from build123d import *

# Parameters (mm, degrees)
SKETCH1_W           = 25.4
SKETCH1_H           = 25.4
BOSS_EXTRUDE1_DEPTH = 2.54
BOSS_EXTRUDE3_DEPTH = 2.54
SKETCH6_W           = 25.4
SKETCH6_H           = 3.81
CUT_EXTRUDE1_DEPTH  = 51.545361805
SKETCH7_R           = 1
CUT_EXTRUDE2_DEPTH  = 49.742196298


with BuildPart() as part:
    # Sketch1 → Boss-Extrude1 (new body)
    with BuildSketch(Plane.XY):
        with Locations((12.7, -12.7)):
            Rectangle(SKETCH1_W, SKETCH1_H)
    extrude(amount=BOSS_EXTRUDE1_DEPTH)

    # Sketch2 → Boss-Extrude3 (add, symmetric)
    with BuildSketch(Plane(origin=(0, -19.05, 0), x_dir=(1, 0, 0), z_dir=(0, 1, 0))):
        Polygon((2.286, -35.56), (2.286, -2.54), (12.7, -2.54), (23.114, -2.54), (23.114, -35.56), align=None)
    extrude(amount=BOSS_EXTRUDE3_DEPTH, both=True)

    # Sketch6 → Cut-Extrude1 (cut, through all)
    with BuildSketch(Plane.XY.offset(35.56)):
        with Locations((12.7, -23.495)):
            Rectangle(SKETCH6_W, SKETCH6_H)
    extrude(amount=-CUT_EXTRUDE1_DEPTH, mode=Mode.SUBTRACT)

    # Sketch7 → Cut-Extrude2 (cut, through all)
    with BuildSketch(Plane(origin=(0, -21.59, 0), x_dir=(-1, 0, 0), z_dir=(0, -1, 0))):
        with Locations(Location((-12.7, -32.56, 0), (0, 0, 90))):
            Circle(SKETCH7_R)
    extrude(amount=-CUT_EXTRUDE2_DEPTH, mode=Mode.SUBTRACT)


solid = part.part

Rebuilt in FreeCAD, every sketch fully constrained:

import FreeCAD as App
import Part
import Sketcher

V = App.Vector
Q = App.Units.Quantity

doc = App.newDocument("Part")
body = doc.addObject("PartDesign::Body", "Body")

# Sketch on XY plane
sketch1 = body.newObject("Sketcher::SketchObject", "Sketch")
sketch1.AttachmentSupport = (doc.getObject("XY_Plane"), [""])
sketch1.MapMode = "FlatFace"
sketch1.addGeometry([
    Part.LineSegment(V(0, 0, 0), V(0, -25, 0)),
    Part.LineSegment(V(0, -25, 0), V(25, -25, 0)),
    Part.LineSegment(V(25, -25, 0), V(25, 0, 0)),
    Part.LineSegment(V(25, 0, 0), V(0, 0, 0)),
], False)
sketch1.addConstraint([
    Sketcher.Constraint("Coincident", 0, 2, 1, 1),
    Sketcher.Constraint("Coincident", 1, 2, 2, 1),
    Sketcher.Constraint("Coincident", 2, 2, 3, 1),
    Sketcher.Constraint("Coincident", 3, 2, 0, 1),
    Sketcher.Constraint("Vertical", 0),
    Sketcher.Constraint("Horizontal", 1),
    Sketcher.Constraint("Vertical", 2),
    Sketcher.Constraint("Horizontal", 3),
    Sketcher.Constraint("Coincident", 3, 2, -1, 1),
    Sketcher.Constraint("Equal", 3, 0),
    Sketcher.Constraint("DistanceX", 1, 1, 1, 2, Q("1 in")),
])
pad1 = body.newObject("PartDesign::Pad", "Pad")
pad1.Profile = sketch1
pad1.Length = Q("0.1 in")

# Sketch on XZ plane
sketch2 = body.newObject("Sketcher::SketchObject", "Sketch001")
sketch2.AttachmentSupport = (doc.getObject("XZ_Plane"), [""])
sketch2.MapMode = "FlatFace"
sketch2.AttachmentOffset = App.Placement(V(0, 0, 0.75 * 25.4), App.Rotation())
sketch2.addGeometry([
    Part.LineSegment(V(2, 3, 0), V(2, 36, 0)),
    Part.LineSegment(V(2, 36, 0), V(23, 36, 0)),
    Part.LineSegment(V(23, 36, 0), V(23, 3, 0)),
    Part.LineSegment(V(23, 3, 0), V(2, 3, 0)),
], False)
sketch2.addConstraint([
    Sketcher.Constraint("Coincident", 0, 2, 1, 1),
    Sketcher.Constraint("Coincident", 1, 2, 2, 1),
    Sketcher.Constraint("Coincident", 2, 2, 3, 1),
    Sketcher.Constraint("Coincident", 3, 2, 0, 1),
    Sketcher.Constraint("Vertical", 0),
    Sketcher.Constraint("Horizontal", 1),
    Sketcher.Constraint("Vertical", 2),
    Sketcher.Constraint("Horizontal", 3),
    Sketcher.Constraint("DistanceY", 0, 1, 0, 2, Q("1.3 in")),
    Sketcher.Constraint("DistanceX", 1, 1, 1, 2, Q("0.82 in")),
    Sketcher.Constraint("DistanceY", -1, 1, 0, 2, Q("1.4 in")),
    Sketcher.Constraint("DistanceX", -1, 1, 0, 2, Q("0.09 in")),
])
pad2 = body.newObject("PartDesign::Pad", "Pad001")
pad2.Profile = sketch2
pad2.Length = Q("0.2 in")
pad2.Midplane = True

# Sketch on XY plane
sketch3 = body.newObject("Sketcher::SketchObject", "Sketch002")
sketch3.AttachmentSupport = (doc.getObject("XY_Plane"), [""])
sketch3.MapMode = "FlatFace"
sketch3.AttachmentOffset = App.Placement(V(0, 0, 1.4 * 25.4), App.Rotation())
sketch3.addGeometry([
    Part.LineSegment(V(0, -21.6, 0), V(0, -25.4, 0)),
    Part.LineSegment(V(0, -25.4, 0), V(25.4, -25.4, 0)),
    Part.LineSegment(V(25.4, -25.4, 0), V(25.4, -21.6, 0)),
    Part.LineSegment(V(25.4, -21.6, 0), V(0, -21.6, 0)),
], False)
sketch3.addConstraint([
    Sketcher.Constraint("Coincident", 0, 2, 1, 1),
    Sketcher.Constraint("Coincident", 1, 2, 2, 1),
    Sketcher.Constraint("Coincident", 2, 2, 3, 1),
    Sketcher.Constraint("Coincident", 3, 2, 0, 1),
    Sketcher.Constraint("Vertical", 0),
    Sketcher.Constraint("Horizontal", 1),
    Sketcher.Constraint("Vertical", 2),
    Sketcher.Constraint("Horizontal", 3),
    Sketcher.Constraint("PointOnObject", 0, 2, -2),
    Sketcher.Constraint("DistanceX", 1, 1, 1, 2, Q("1 in")),
    Sketcher.Constraint("DistanceY", 0, 2, -1, 1, Q("1 in")),
    Sketcher.Constraint("DistanceY", 0, 2, 0, 1, Q("0.15 in")),
])
pocket1 = body.newObject("PartDesign::Pocket", "Pocket")
pocket1.Profile = sketch3
pocket1.Type = "ThroughAll"

# Sketch on XZ plane
sketch4 = body.newObject("Sketcher::SketchObject", "Sketch003")
sketch4.AttachmentSupport = (doc.getObject("XZ_Plane"), [""])
sketch4.MapMode = "FlatFace"
sketch4.AttachmentOffset = App.Placement(V(0, 0, 0.85 * 25.4), App.Rotation())
sketch4.addGeometry(Part.Circle(V(12.7, 32.6, 0), V(0, 0, 1), 1), False)
sketch4.addConstraint([
    Sketcher.Constraint("DistanceX", -1, 1, 0, 3, Q("0.5 in")),
    Sketcher.Constraint("Diameter", 0, Q("2 mm")),
    Sketcher.Constraint("DistanceY", -1, 1, 0, 3, Q("32.56 mm")),
])
pocket2 = body.newObject("PartDesign::Pocket", "Pocket001")
pocket2.Profile = sketch4
pocket2.Type = "ThroughAll"

doc.recompute()
